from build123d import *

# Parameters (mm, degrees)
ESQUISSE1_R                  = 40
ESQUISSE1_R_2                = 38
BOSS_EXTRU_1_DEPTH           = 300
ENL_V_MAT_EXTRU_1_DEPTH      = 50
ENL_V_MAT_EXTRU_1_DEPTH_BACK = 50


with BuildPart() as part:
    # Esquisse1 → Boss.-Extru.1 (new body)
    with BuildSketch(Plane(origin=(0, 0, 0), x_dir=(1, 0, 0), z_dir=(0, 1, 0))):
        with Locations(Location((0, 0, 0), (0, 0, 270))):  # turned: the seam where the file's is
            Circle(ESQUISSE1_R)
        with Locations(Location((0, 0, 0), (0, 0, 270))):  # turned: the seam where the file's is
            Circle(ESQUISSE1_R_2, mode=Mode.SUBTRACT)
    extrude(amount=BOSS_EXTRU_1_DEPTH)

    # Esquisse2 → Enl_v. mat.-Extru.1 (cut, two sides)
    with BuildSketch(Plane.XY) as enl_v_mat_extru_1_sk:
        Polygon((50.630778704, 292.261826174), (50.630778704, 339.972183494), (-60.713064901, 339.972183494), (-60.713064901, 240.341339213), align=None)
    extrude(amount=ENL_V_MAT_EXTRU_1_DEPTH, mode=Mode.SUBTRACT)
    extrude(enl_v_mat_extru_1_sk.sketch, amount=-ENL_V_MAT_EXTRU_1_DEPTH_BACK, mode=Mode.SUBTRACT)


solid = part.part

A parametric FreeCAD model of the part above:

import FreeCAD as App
import Part
import Sketcher
from FreeCAD import Vector
Q = App.Units.Quantity


def add_polygon(sketch, points):
    """Adds a closed chain of lines whose ends are joined by coincident constraints."""
    first, n = sketch.GeometryCount, len(points)
    for a, b in zip(points, points[1:] + points[:1]):
        sketch.addGeometry(Part.LineSegment(App.Vector(*a, 0), App.Vector(*b, 0)), False)
    for i in range(n):
        sketch.addConstraint(Sketcher.Constraint("Coincident", first + i, 2, first + (i + 1) % n, 1))

doc = App.newDocument("Part")
body = doc.addObject("PartDesign::Body", "Body")

# Sketch on XZ plane
sketch1 = doc.addObject("Sketcher::SketchObject", "Sketch")
body.addObject(sketch1)
sketch1.AttachmentSupport = (doc.XZ_Plane, [""])
sketch1.MapMode = "FlatFace"
sketch1.addGeometry([
    Part.Circle(Vector(0, 0, 0), Vector(0, 0, 1), 40),
    Part.Circle(Vector(0, 0, 0), Vector(0, 0, 1), 38),
], False)
sketch1.addConstraint([
    Sketcher.Constraint("Coincident", 0, 3, -1, 1),
    Sketcher.Constraint("Coincident", 1, 3, -1, 1),
    Sketcher.Constraint("Diameter", 0, Q("80 mm")),
    Sketcher.Constraint("Diameter", 1, Q("76 mm")),
])
pad1 = doc.addObject("PartDesign::Pad", "Pad")
body.addObject(pad1)
pad1.Profile = sketch1
pad1.Length = 300
pad1.Reversed = True

# Sketch on XY plane
sketch2 = doc.addObject("Sketcher::SketchObject", "Sketch001")
body.addObject(sketch2)
sketch2.AttachmentSupport = (doc.XY_Plane, [""])
sketch2.MapMode = "FlatFace"
add_polygon(sketch2, [(51, 292), (51, 340), (-61, 340), (-61, 240)])  # lines 0-3
sketch2.addConstraint([
    Sketcher.Constraint("Vertical", 0),
    Sketcher.Constraint("Horizontal", 1),
    Sketcher.Constraint("Vertical", 2),
    Sketcher.Constraint("Angle", 3, Q("25 deg")),
    Sketcher.Constraint("Distance", 3, Q("122.854338 mm")),
    Sketcher.Constraint("DistanceY", 0, 1, 0, 2, Q("47.710357 mm")),
    Sketcher.Constraint("DistanceX", -1, 1, 0, 2, Q("50.630779 mm")),
    Sketcher.Constraint("DistanceY", -1, 1, 2, 2, Q("240.341339 mm")),
])
pocket1 = doc.addObject("PartDesign::Pocket", "Pocket")
body.addObject(pocket1)
pocket1.Profile = sketch2
pocket1.Type = "ThroughAll"
pocket1.Midplane = True

doc.recompute()
